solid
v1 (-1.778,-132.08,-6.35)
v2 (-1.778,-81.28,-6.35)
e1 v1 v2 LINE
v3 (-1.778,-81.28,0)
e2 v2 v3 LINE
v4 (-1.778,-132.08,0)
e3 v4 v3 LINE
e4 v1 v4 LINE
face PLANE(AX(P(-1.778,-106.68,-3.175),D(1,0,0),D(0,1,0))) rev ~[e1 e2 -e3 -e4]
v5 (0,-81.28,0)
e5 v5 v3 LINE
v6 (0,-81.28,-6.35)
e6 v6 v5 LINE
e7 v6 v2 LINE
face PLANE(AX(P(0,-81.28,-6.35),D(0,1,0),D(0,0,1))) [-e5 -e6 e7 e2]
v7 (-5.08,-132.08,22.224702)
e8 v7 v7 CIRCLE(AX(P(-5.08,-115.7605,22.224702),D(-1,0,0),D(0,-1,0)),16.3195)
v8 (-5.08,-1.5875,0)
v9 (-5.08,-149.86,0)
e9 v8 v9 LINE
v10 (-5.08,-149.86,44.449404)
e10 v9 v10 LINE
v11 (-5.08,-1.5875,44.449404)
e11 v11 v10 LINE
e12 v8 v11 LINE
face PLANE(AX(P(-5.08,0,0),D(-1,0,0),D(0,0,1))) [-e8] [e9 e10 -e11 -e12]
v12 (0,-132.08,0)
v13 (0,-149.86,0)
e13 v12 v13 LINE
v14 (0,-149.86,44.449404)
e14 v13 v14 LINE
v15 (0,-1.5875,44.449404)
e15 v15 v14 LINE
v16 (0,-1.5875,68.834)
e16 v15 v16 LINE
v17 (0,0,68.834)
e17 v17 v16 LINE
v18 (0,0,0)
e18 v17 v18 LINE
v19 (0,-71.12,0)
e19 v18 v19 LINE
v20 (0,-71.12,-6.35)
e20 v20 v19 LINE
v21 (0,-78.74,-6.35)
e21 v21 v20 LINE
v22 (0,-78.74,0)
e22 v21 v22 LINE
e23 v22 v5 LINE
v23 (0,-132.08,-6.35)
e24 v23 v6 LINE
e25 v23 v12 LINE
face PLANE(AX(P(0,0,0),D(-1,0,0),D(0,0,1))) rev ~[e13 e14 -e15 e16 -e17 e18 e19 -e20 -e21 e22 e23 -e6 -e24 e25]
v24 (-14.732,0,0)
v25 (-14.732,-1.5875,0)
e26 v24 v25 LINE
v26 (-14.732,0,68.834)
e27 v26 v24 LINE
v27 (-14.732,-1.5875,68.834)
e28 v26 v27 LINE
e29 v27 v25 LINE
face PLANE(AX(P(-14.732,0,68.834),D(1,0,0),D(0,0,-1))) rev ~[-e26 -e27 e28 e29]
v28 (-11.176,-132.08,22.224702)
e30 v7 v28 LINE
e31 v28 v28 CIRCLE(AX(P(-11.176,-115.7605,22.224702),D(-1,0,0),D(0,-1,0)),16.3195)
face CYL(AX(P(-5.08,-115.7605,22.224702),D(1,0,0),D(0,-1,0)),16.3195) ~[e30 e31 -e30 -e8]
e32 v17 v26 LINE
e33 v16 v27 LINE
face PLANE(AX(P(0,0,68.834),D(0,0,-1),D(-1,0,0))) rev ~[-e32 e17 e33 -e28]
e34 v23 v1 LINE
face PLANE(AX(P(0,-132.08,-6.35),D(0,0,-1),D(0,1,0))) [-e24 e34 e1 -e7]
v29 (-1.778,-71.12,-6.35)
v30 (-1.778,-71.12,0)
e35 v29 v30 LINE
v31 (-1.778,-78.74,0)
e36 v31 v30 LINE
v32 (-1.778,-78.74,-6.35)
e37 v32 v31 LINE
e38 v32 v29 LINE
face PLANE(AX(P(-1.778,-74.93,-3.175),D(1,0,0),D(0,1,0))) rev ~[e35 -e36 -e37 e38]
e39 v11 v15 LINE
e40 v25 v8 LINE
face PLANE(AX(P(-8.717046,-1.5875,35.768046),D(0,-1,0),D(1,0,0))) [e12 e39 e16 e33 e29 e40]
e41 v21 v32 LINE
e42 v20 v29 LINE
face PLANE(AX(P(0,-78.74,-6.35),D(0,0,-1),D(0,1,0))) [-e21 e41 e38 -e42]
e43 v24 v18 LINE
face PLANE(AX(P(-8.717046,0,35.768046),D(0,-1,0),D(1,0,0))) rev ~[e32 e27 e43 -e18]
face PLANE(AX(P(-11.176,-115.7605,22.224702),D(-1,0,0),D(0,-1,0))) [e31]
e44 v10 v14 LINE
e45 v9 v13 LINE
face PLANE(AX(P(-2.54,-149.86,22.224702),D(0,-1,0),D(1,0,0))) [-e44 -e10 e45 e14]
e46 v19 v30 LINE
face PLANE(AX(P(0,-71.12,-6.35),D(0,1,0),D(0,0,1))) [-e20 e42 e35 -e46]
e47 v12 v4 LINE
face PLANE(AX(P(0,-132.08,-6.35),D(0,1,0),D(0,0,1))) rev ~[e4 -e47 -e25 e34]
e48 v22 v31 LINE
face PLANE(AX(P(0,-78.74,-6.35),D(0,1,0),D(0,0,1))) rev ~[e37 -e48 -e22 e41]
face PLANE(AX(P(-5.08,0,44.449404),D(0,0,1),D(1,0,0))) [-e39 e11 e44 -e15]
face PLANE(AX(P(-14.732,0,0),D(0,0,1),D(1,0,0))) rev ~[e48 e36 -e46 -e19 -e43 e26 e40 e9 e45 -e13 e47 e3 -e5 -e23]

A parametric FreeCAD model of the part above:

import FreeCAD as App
import Part
import Sketcher

V = App.Vector
Q = App.Units.Quantity

doc = App.newDocument("Part")
body = doc.addObject("PartDesign::Body", "Body")

# Sketch on XZ plane
sketch1 = body.newObject("Sketcher::SketchObject", "Sketch")
sketch1.AttachmentSupport = (doc.getObject("XZ_Plane"), [""])
sketch1.MapMode = "FlatFace"
sketch1.addGeometry(Part.LineSegment(V(-5, 44, 0), V(-5, 0, 0)), False)
sketch1.addGeometry(Part.LineSegment(V(-5, 0, 0), V(0, 0, 0)), False)
sketch1.addGeometry(Part.LineSegment(V(0, 0, 0), V(0, 44, 0)), False)
sketch1.addGeometry(Part.LineSegment(V(0, 44, 0), V(-5, 44, 0)), False)
sketch1.addConstraint(Sketcher.Constraint("Coincident", 0, 2, 1, 1))
sketch1.addConstraint(Sketcher.Constraint("Coincident", 1, 2, 2, 1))
sketch1.addConstraint(Sketcher.Constraint("Coincident", 2, 2, 3, 1))
sketch1.addConstraint(Sketcher.Constraint("Coincident", 3, 2, 0, 1))
sketch1.addConstraint(Sketcher.Constraint("Vertical", 0))
sketch1.addConstraint(Sketcher.Constraint("Horizontal", 1))
sketch1.addConstraint(Sketcher.Constraint("Vertical", 2))
sketch1.addConstraint(Sketcher.Constraint("Horizontal", 3))
sketch1.addConstraint(Sketcher.Constraint("Coincident", 1, 2, -1, 1))
sketch1.addConstraint(Sketcher.Constraint("DistanceX", 1, 1, 1, 2, Q("0.2 in")))
sketch1.addConstraint(Sketcher.Constraint("DistanceY", 0, 2, 0, 1, Q("44.449404 mm")))
pad1 = body.newObject("PartDesign::Pad", "Pad")
pad1.Profile = sketch1
pad1.Length = Q("5.9 in")

# Sketch on XZ plane
sketch2 = body.newObject("Sketcher::SketchObject", "Sketch001")
sketch2.AttachmentSupport = (doc.getObject("XZ_Plane"), [""])
sketch2.MapMode = "FlatFace"
sketch2.addGeometry(Part.LineSegment(V(-15, 0, 0), V(-5, 0, 0)), False)
sketch2.addGeometry(Part.LineSegment(V(-5, 0, 0), V(-5, 44, 0)), False)
sketch2.addGeometry(Part.LineSegment(V(-5, 44, 0), V(0, 44, 0)), False)
sketch2.addGeometry(Part.LineSegment(V(0, 44, 0), V(0, 69, 0)), False)
sketch2.addGeometry(Part.LineSegment(V(0, 69, 0), V(-15, 69, 0)), False)
sketch2.addGeometry(Part.LineSegment(V(-15, 69, 0), V(-15, 0, 0)), False)
sketch2.addConstraint(Sketcher.Constraint("Coincident", 0, 2, 1, 1))
sketch2.addConstraint(Sketcher.Constraint("Coincident", 1, 2, 2, 1))
sketch2.addConstraint(Sketcher.Constraint("Coincident", 2, 2, 3, 1))
sketch2.addConstraint(Sketcher.Constraint("Coincident", 3, 2, 4, 1))
sketch2.addConstraint(Sketcher.Constraint("Coincident", 4, 2, 5, 1))
sketch2.addConstraint(Sketcher.Constraint("Coincident", 5, 2, 0, 1))
sketch2.addConstraint(Sketcher.Constraint("Horizontal", 0))
sketch2.addConstraint(Sketcher.Constraint("Vertical", 1))
sketch2.addConstraint(Sketcher.Constraint("Horizontal", 2))
sketch2.addConstraint(Sketcher.Constraint("Vertical", 3))
sketch2.addConstraint(Sketcher.Constraint("Horizontal", 4))
sketch2.addConstraint(Sketcher.Constraint("Vertical", 5))
sketch2.addConstraint(Sketcher.Constraint("PointOnObject", 0, 2, -1))
sketch2.addConstraint(Sketcher.Constraint("PointOnObject", 2, 2, -2))
sketch2.addConstraint(Sketcher.Constraint("DistanceX", 2, 1, 2, 2, Q("0.2 in")))
sketch2.addConstraint(Sketcher.Constraint("DistanceX", 0, 1, 0, 2, Q("0.38 in")))
sketch2.addConstraint(Sketcher.Constraint("DistanceY", 5, 2, 5, 1, Q("2.71 in")))
sketch2.addConstraint(Sketcher.Constraint("DistanceY", 1, 1, 1, 2, Q("44.449404 mm")))
pad2 = body.newObject("PartDesign::Pad", "Pad001")
pad2.Profile = sketch2
pad2.Length = Q("0.0625 in")

# Sketch on YZ plane
sketch3 = body.newObject("Sketcher::SketchObject", "Sketch002")
sketch3.AttachmentSupport = (doc.getObject("YZ_Plane"), [""])
sketch3.MapMode = "FlatFace"
sketch3.addGeometry(Part.LineSegment(V(-79, 0, 0), V(-79, -6, 0)), False)
sketch3.addGeometry(Part.LineSegment(V(-79, -6, 0), V(-71, -6, 0)), False)
sketch3.addGeometry(Part.LineSegment(V(-71, -6, 0), V(-71, 0, 0)), False)
sketch3.addGeometry(Part.LineSegment(V(-71, 0, 0), V(-79, 0, 0)), False)
sketch3.addGeometry(Part.LineSegment(V(-132, 0, 0), V(-132, -6, 0)), False)
sketch3.addGeometry(Part.LineSegment(V(-132, -6, 0), V(-81, -6, 0)), False)
sketch3.addGeometry(Part.LineSegment(V(-81, -6, 0), V(-81, 0, 0)), False)
sketch3.addGeometry(Part.LineSegment(V(-81, 0, 0), V(-132, 0, 0)), False)
sketch3.addConstraint(Sketcher.Constraint("Coincident", 0, 2, 1, 1))
sketch3.addConstraint(Sketcher.Constraint("Coincident", 1, 2, 2, 1))
sketch3.addConstraint(Sketcher.Constraint("Coincident", 2, 2, 3, 1))
sketch3.addConstraint(Sketcher.Constraint("Coincident", 3, 2, 0, 1))
sketch3.addConstraint(Sketcher.Constraint("Coincident", 4, 2, 5, 1))
sketch3.addConstraint(Sketcher.Constraint("Coincident", 5, 2, 6, 1))
sketch3.addConstraint(Sketcher.Constraint("Coincident", 6, 2, 7, 1))
sketch3.addConstraint(Sketcher.Constraint("Coincident", 7, 2, 4, 1))
sketch3.addConstraint(Sketcher.Constraint("Vertical", 0))
sketch3.addConstraint(Sketcher.Constraint("Horizontal", 1))
sketch3.addConstraint(Sketcher.Constraint("Vertical", 2))
sketch3.addConstraint(Sketcher.Constraint("Horizontal", 3))
sketch3.addConstraint(Sketcher.Constraint("Vertical", 4))
sketch3.addConstraint(Sketcher.Constraint("Horizontal", 5))
sketch3.addConstraint(Sketcher.Constraint("Vertical", 6))
sketch3.addConstraint(Sketcher.Constraint("Horizontal", 7))
sketch3.addConstraint(Sketcher.Constraint("PointOnObject", 2, 2, -1))
sketch3.addConstraint(Sketcher.Constraint("PointOnObject", 6, 2, -1))
sketch3.addConstraint(Sketcher.Constraint("Horizontal", 1, 2, 4, 2))
sketch3.addConstraint(Sketcher.Constraint("DistanceX", 5, 1, 5, 2, Q("2 in")))
sketch3.addConstraint(Sketcher.Constraint("DistanceX", 1, 1, 1, 2, Q("0.3 in")))
sketch3.addConstraint(Sketcher.Constraint("DistanceY", 0, 2, 0, 1, Q("0.25 in")))
sketch3.addConstraint(Sketcher.Constraint("DistanceX", 0, 2, -1, 1, Q("3.1 in")))
sketch3.addConstraint(Sketcher.Constraint("DistanceX", 4, 2, -1, 1, Q("5.2 in")))
pad3 = body.newObject("PartDesign::Pad", "Pad002")
pad3.Profile = sketch3
pad3.Length = Q("0.07 in")
pad3.Reversed = True

# Sketch on YZ plane
sketch4 = body.newObject("Sketcher::SketchObject", "Sketch003")
sketch4.AttachmentSupport = (doc.getObject("YZ_Plane"), [""])
sketch4.MapMode = "FlatFace"
sketch4.AttachmentOffset = App.Placement(V(0, 0, -0.2 * 25.4), App.Rotation())
sketch4.addGeometry(Part.Circle(V(-116, 22, 0), V(0, 0, 1), 16), False)
sketch4.addConstraint(Sketcher.Constraint("Diameter", 0, Q("1.285 in")))
sketch4.addConstraint(Sketcher.Constraint("DistanceX", 0, 3, -1, 1, Q("4.5575 in")))
sketch4.addConstraint(Sketcher.Constraint("DistanceY", -1, 1, 0, 3, Q("22.224702 mm")))
pad4 = body.newObject("PartDesign::Pad", "Pad003")
pad4.Profile = sketch4
pad4.Length = Q("0.24 in")
pad4.Reversed = True

doc.recompute()
